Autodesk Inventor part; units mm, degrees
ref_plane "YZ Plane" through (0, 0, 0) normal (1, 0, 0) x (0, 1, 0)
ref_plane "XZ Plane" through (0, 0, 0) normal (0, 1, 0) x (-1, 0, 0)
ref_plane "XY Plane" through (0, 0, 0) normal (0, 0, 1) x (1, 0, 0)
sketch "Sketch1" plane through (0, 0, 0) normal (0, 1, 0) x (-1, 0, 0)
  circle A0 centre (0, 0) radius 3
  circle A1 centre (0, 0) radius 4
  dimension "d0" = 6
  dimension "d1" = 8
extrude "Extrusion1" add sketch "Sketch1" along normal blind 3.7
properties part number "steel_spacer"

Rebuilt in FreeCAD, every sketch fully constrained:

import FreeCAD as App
import Part
import Sketcher

V = App.Vector
Q = App.Units.Quantity

doc = App.newDocument("Part")
body = doc.addObject("PartDesign::Body", "Body")

sketch1 = doc.addObject("Sketcher::SketchObject", "Sketch")
body.addObject(sketch1)
sketch1.AttachmentSupport = (doc.XZ_Plane, [""])
sketch1.MapMode = "FlatFace"
sketch1.addGeometry([
    Part.Circle(V(0, 0, 0), V(0, 0, 1), 4),
    Part.Circle(V(0, 0, 0), V(0, 0, 1), 3),
], False)
sketch1.addConstraint([
    Sketcher.Constraint("Coincident", 0, 3, -1, 1),
    Sketcher.Constraint("Coincident", 1, 3, -1, 1),
    Sketcher.Constraint("Diameter", 0, Q("8 mm")),
    Sketcher.Constraint("Diameter", 1, Q("6 mm")),
])
pad1 = doc.addObject("PartDesign::Pad", "Pad")
body.addObject(pad1)
pad1.Profile = sketch1
pad1.Length = 3.7
pad1.Reversed = True

doc.recompute()
